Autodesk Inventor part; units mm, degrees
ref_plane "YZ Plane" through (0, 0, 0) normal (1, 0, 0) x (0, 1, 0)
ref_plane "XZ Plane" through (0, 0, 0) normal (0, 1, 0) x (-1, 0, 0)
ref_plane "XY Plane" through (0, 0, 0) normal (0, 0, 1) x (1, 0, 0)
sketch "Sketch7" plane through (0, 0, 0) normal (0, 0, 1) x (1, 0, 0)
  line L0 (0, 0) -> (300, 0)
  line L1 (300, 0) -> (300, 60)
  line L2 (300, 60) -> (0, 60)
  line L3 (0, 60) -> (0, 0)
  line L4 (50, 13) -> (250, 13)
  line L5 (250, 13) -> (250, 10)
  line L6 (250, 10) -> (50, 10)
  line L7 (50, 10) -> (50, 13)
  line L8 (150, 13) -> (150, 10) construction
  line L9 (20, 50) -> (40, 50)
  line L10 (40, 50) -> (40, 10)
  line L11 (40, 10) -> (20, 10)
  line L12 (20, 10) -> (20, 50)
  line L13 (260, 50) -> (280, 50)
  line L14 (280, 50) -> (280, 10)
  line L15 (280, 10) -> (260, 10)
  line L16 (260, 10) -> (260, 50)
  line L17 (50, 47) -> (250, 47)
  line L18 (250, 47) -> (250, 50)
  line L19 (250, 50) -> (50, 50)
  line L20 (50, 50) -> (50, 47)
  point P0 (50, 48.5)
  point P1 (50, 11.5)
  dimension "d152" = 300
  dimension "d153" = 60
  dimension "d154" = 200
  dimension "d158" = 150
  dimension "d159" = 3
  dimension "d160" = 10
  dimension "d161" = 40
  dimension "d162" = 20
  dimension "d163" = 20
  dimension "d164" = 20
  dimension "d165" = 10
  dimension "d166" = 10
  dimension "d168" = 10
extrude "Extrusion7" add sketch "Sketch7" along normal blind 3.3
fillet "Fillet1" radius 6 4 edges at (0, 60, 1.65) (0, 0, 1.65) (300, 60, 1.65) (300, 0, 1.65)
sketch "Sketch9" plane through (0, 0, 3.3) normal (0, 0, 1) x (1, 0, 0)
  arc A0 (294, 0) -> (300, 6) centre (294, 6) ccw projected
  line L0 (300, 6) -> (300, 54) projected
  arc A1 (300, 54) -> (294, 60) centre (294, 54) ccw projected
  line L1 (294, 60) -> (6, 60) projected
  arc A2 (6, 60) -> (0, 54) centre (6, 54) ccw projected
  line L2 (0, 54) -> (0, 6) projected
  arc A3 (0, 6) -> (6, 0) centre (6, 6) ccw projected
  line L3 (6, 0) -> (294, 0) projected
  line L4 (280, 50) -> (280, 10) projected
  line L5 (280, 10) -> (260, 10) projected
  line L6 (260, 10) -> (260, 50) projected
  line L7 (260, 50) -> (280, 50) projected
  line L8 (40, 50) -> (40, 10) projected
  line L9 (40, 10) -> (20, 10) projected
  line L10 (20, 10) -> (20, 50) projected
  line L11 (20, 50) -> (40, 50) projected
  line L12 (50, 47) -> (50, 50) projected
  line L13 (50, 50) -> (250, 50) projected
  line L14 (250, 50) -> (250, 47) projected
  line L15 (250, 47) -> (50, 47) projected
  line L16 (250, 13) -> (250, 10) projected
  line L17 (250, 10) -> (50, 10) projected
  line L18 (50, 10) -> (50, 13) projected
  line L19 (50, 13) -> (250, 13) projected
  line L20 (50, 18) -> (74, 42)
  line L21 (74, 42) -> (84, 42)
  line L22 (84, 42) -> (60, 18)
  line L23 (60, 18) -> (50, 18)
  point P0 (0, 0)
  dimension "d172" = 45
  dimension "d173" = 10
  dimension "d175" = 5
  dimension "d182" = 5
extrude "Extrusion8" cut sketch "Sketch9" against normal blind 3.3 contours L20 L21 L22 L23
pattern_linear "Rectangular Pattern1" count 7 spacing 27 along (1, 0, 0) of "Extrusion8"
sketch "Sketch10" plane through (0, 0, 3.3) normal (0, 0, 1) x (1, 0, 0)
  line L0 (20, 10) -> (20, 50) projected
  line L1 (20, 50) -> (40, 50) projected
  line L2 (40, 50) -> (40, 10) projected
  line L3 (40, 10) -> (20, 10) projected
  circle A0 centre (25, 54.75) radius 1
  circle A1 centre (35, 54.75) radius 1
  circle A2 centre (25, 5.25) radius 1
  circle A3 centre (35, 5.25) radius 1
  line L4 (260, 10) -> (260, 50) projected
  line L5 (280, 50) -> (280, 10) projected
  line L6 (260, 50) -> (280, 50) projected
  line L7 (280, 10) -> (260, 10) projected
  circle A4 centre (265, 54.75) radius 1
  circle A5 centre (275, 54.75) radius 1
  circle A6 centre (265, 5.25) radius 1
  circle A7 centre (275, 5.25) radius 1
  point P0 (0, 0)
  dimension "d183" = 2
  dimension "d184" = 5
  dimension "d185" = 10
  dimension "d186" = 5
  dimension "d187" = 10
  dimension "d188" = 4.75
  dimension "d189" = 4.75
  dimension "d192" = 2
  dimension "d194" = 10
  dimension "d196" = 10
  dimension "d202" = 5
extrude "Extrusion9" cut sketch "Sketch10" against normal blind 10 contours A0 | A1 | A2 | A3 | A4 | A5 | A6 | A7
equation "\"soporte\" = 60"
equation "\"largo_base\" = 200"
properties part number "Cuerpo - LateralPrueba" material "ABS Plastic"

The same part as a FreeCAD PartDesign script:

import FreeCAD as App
import Part
import Sketcher
from FreeCAD import Vector
Q = App.Units.Quantity


def edges_at(feature, points):
    """Names of the edges that pass closest to the given points."""
    edges = feature.Shape.Edges
    near = lambda p: min(range(len(edges)), key=lambda i: edges[i].distToShape(Part.Vertex(*p))[0])
    return sorted({f"Edge{near(p) + 1}" for p in points})


def add_polygon(sketch, points):
    """Adds a closed chain of lines whose ends are joined by coincident constraints."""
    first, n = sketch.GeometryCount, len(points)
    for a, b in zip(points, points[1:] + points[:1]):
        sketch.addGeometry(Part.LineSegment(App.Vector(*a, 0), App.Vector(*b, 0)), False)
    for i in range(n):
        sketch.addConstraint(Sketcher.Constraint("Coincident", first + i, 2, first + (i + 1) % n, 1))

doc = App.newDocument("Part")
body = doc.addObject("PartDesign::Body", "Body")

sketch1 = doc.addObject("Sketcher::SketchObject", "Sketch")
body.addObject(sketch1)
sketch1.AttachmentSupport = (doc.XY_Plane, [""])
sketch1.MapMode = "FlatFace"
add_polygon(sketch1, [(0, 60), (0, 0), (300, 0), (300, 60)])
add_polygon(sketch1, [(50, 10), (50, 13), (250, 13), (250, 10)])
add_polygon(sketch1, [(20, 10), (20, 50), (40, 50), (40, 10)])
add_polygon(sketch1, [(260, 10), (260, 50), (280, 50), (280, 10)])
add_polygon(sketch1, [(250, 47), (50, 47), (50, 50), (250, 50)])
sketch1.addConstraint([
    Sketcher.Constraint("Vertical", 0),
    Sketcher.Constraint("Horizontal", 1),
    Sketcher.Constraint("Vertical", 2),
    Sketcher.Constraint("Horizontal", 3),
    Sketcher.Constraint("Vertical", 4),
    Sketcher.Constraint("Horizontal", 5),
    Sketcher.Constraint("Vertical", 6),
    Sketcher.Constraint("Horizontal", 7),
    Sketcher.Constraint("Vertical", 8),
    Sketcher.Constraint("Horizontal", 9),
    Sketcher.Constraint("Vertical", 10),
    Sketcher.Constraint("Horizontal", 11),
    Sketcher.Constraint("Vertical", 12),
    Sketcher.Constraint("Horizontal", 13),
    Sketcher.Constraint("Vertical", 14),
    Sketcher.Constraint("Horizontal", 15),
    Sketcher.Constraint("Horizontal", 16),
    Sketcher.Constraint("Vertical", 17),
    Sketcher.Constraint("Horizontal", 18),
    Sketcher.Constraint("Vertical", 19),
    Sketcher.Constraint("Coincident", 0, 2, -1, 1),
    Sketcher.Constraint("Horizontal", 7, 2, 10, 2),
    Sketcher.Constraint("Horizontal", 9, 2, 12, 2),
    Sketcher.Constraint("Horizontal", 11, 2, 14, 2),
    Sketcher.Constraint("Horizontal", 13, 2, 17, 2),
    Sketcher.Constraint("Vertical", 7, 2, 16, 2),
    Sketcher.Constraint("Vertical", 6, 2, 18, 2),
    Sketcher.Constraint("Equal", 11, 13),
    Sketcher.Constraint("Equal", 6, 17),
    Sketcher.Constraint("DistanceX", 1, 1, 1, 2, 300.0),
    Sketcher.Constraint("DistanceX", 5, 1, 5, 2, 200.0),
    Sketcher.Constraint("DistanceX", 9, 1, 9, 2, 20.0),
    Sketcher.Constraint("DistanceY", 0, 2, 0, 1, 60.0),
    Sketcher.Constraint("DistanceY", 4, 1, 4, 2, 3.0),
    Sketcher.Constraint("DistanceY", 8, 1, 8, 2, 40.0),
    Sketcher.Constraint("DistanceY", -1, 1, 6, 2, 10.0),
    Sketcher.Constraint("DistanceX", -1, 1, 8, 2, 20.0),
    Sketcher.Constraint("DistanceX", 9, 2, 4, 2, 10.0),
    Sketcher.Constraint("DistanceX", 5, 2, 12, 2, 10.0),
])
pad1 = doc.addObject("PartDesign::Pad", "Pad")
body.addObject(pad1)
pad1.Profile = sketch1
pad1.Length = 3.3
doc.recompute()

fillet = doc.addObject("PartDesign::Fillet", "Fillet")
body.addObject(fillet)
fillet.Base = (pad1, edges_at(pad1, [
    (0, 60, 1.65),
    (0, 0, 1.65),
    (300, 60, 1.65),
    (300, 0, 1.65),
]))
fillet.Radius = 6

sketch2 = doc.addObject("Sketcher::SketchObject", "Sketch001")
body.addObject(sketch2)
sketch2.AttachmentSupport = (doc.XY_Plane, [""])
sketch2.MapMode = "FlatFace"
sketch2.AttachmentOffset = App.Placement(Vector(0, 0, 3.3), App.Rotation())
add_polygon(sketch2, [(74, 42), (50, 18), (60, 18), (84, 42)])
sketch2.addConstraint([
    Sketcher.Constraint("Horizontal", 1),
    Sketcher.Constraint("Horizontal", 3),
    Sketcher.Constraint("Parallel", 0, 2),
    Sketcher.Constraint("DistanceX", 1, 1, 1, 2, 10.0),
    Sketcher.Constraint("Angle", 2, Q("45 deg")),
    Sketcher.Constraint("DistanceX", -1, 1, 0, 2, 50.0),
    Sketcher.Constraint("DistanceY", -1, 1, 0, 2, 18.0),
    Sketcher.Constraint("DistanceX", -1, 1, 2, 2, 84.0),
])
pocket1 = doc.addObject("PartDesign::Pocket", "Pocket")
body.addObject(pocket1)
pocket1.Profile = sketch2
pocket1.Length = 3.3
doc.recompute()

linearpattern = doc.addObject("PartDesign::LinearPattern", "LinearPattern")
body.addObject(linearpattern)
linearpattern.Originals = [pocket1]
linearpattern.Direction = (doc.X_Axis, [""])
linearpattern.Mode = "offset"
linearpattern.Offset = 27
linearpattern.Occurrences = 7
body.Tip = linearpattern

sketch3 = doc.addObject("Sketcher::SketchObject", "Sketch002")
body.addObject(sketch3)
sketch3.AttachmentSupport = (doc.XY_Plane, [""])
sketch3.MapMode = "FlatFace"
sketch3.AttachmentOffset = App.Placement(Vector(0, 0, 3.3), App.Rotation())
sketch3.addGeometry([
    Part.Circle(Vector(25, 54.8, 0), Vector(0, 0, 1), 1),
    Part.Circle(Vector(35, 54.8, 0), Vector(0, 0, 1), 1),
    Part.Circle(Vector(25, 5.2, 0), Vector(0, 0, 1), 1),
    Part.Circle(Vector(35, 5.2, 0), Vector(0, 0, 1), 1),
    Part.Circle(Vector(265, 54.8, 0), Vector(0, 0, 1), 1),
    Part.Circle(Vector(275, 54.8, 0), Vector(0, 0, 1), 1),
    Part.Circle(Vector(265, 5.2, 0), Vector(0, 0, 1), 1),
    Part.Circle(Vector(275, 5.2, 0), Vector(0, 0, 1), 1),
], False)
sketch3.addConstraint([
    Sketcher.Constraint("Equal", 0, 1),
    Sketcher.Constraint("Equal", 1, 2),
    Sketcher.Constraint("Equal", 2, 3),
    Sketcher.Constraint("Equal", 3, 4),
    Sketcher.Constraint("Equal", 4, 5),
    Sketcher.Constraint("Equal", 5, 6),
    Sketcher.Constraint("Equal", 6, 7),
    Sketcher.Constraint("Horizontal", 0, 3, 1, 3),
    Sketcher.Constraint("Horizontal", 2, 3, 3, 3),
    Sketcher.Constraint("Horizontal", 1, 3, 4, 3),
    Sketcher.Constraint("Horizontal", 4, 3, 5, 3),
    Sketcher.Constraint("Horizontal", 3, 3, 6, 3),
    Sketcher.Constraint("Horizontal", 6, 3, 7, 3),
    Sketcher.Constraint("Vertical", 0, 3, 2, 3),
    Sketcher.Constraint("Vertical", 1, 3, 3, 3),
    Sketcher.Constraint("Vertical", 4, 3, 6, 3),
    Sketcher.Constraint("Vertical", 5, 3, 7, 3),
    Sketcher.Constraint("Diameter", 0, 2.0),
    Sketcher.Constraint("DistanceX", 0, 3, 1, 3, 10.0),
    Sketcher.Constraint("DistanceX", 4, 3, 5, 3, 10.0),
    Sketcher.Constraint("DistanceX", -1, 1, 0, 3, 25.0),
    Sketcher.Constraint("DistanceX", -1, 1, 4, 3, 265.0),
    Sketcher.Constraint("DistanceY", 2, 3, 0, 3, 49.5),
    Sketcher.Constraint("DistanceY", -1, 1, 0, 3, 54.75),
])
pocket2 = doc.addObject("PartDesign::Pocket", "Pocket001")
body.addObject(pocket2)
pocket2.Profile = sketch3
pocket2.Length = 10

doc.recompute()
